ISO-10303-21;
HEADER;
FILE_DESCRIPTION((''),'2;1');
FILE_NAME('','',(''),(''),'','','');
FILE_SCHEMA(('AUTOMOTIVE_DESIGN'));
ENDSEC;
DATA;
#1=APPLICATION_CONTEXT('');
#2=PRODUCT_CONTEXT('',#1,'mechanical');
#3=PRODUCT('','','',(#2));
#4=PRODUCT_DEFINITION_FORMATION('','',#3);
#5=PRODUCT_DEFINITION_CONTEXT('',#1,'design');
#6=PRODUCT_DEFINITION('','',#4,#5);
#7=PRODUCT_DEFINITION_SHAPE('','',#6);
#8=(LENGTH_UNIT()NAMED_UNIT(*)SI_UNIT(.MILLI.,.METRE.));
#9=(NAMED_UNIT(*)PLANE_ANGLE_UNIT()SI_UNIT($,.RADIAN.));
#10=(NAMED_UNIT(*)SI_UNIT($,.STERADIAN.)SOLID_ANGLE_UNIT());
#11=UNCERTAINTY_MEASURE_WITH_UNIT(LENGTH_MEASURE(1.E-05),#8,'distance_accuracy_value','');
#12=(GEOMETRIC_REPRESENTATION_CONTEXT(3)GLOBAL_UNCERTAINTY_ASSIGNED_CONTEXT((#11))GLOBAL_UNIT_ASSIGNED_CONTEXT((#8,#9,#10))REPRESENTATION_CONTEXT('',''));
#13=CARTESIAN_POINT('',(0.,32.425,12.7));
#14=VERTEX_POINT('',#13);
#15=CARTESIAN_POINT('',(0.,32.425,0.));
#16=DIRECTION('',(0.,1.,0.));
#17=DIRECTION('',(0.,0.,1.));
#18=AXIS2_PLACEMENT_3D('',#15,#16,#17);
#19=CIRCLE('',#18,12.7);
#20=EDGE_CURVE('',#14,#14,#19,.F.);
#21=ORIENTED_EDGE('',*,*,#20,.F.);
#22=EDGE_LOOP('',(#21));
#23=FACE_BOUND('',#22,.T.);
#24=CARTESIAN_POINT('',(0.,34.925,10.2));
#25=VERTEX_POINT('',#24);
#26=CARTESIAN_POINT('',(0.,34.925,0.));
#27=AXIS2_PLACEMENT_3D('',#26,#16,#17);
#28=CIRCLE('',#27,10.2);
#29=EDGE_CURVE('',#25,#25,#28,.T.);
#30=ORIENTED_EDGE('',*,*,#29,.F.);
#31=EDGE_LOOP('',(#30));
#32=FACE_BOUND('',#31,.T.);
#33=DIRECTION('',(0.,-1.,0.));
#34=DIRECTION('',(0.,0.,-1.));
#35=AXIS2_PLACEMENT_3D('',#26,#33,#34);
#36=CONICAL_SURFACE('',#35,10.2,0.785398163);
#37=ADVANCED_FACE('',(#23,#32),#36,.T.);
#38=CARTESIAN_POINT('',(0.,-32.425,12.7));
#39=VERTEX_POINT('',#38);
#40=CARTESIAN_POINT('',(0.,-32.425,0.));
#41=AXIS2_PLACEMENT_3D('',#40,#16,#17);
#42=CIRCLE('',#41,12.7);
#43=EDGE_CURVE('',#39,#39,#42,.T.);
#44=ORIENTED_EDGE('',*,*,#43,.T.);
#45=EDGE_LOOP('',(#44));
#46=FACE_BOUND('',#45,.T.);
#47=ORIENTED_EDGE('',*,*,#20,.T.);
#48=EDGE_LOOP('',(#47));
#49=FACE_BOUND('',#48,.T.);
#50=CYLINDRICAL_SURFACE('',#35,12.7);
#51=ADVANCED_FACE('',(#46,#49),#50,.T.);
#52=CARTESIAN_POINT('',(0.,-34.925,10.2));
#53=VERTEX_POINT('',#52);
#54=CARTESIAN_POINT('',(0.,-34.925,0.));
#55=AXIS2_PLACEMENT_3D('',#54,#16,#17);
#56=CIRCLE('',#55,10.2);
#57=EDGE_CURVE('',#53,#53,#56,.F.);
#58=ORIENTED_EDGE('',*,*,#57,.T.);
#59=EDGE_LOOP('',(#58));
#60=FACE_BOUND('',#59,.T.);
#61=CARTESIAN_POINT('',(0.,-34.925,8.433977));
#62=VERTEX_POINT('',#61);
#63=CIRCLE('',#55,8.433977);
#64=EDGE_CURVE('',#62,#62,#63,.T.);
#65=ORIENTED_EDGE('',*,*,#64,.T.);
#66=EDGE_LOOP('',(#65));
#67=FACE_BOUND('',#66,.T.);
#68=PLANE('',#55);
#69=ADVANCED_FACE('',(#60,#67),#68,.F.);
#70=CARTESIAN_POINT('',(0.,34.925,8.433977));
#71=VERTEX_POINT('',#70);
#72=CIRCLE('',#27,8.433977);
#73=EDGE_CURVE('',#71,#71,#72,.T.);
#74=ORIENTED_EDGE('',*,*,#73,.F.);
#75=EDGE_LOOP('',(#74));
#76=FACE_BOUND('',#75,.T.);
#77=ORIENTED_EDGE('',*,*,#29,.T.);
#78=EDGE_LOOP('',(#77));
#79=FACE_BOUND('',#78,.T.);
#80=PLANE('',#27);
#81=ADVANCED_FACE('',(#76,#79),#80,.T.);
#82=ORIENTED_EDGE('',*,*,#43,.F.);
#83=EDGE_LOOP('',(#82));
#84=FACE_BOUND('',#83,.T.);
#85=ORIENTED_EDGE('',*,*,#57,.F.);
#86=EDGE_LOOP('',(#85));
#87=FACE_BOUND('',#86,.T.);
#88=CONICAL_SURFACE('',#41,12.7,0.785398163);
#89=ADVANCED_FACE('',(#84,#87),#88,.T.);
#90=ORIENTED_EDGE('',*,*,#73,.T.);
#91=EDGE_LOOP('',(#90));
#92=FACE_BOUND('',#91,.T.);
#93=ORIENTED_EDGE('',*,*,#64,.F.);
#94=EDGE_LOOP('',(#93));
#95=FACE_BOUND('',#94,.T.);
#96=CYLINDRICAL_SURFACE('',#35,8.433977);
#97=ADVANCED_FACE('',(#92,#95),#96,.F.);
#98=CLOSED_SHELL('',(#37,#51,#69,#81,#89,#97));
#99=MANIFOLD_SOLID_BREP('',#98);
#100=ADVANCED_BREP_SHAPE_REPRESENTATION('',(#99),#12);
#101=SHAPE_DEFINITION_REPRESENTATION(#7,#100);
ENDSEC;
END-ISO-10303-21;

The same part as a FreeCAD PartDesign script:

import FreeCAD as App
import Part
import Sketcher
Q = App.Units.Quantity


def edges_at(feature, points):
    """Names of the edges that pass closest to the given points."""
    edges = feature.Shape.Edges
    near = lambda p: min(range(len(edges)), key=lambda i: edges[i].distToShape(Part.Vertex(*p))[0])
    return sorted({f"Edge{near(p) + 1}" for p in points})

doc = App.newDocument("Part")
body = doc.addObject("PartDesign::Body", "Body")

sketch1 = doc.addObject("Sketcher::SketchObject", "Sketch")
body.addObject(sketch1)
sketch1.AttachmentSupport = (doc.XZ_Plane, [""])
sketch1.MapMode = "FlatFace"
sketch1.addGeometry(Part.Circle(App.Vector(0, 0, 0), App.Vector(0, 0, 1), 12.7), False)
sketch1.addGeometry(Part.Circle(App.Vector(0, 0, 0), App.Vector(0, 0, 1), 8.433977), False)
sketch1.addConstraint(Sketcher.Constraint("Coincident", 0, 3, -1, 1))
sketch1.addConstraint(Sketcher.Constraint("Coincident", 1, 3, -1, 1))
sketch1.addConstraint(Sketcher.Constraint("Diameter", 0, Q("1 in")))
sketch1.addConstraint(Sketcher.Constraint("Diameter", 1, Q("16.867954 mm")))
pad1 = doc.addObject("PartDesign::Pad", "Pad")
body.addObject(pad1)
pad1.Profile = sketch1
pad1.Length = Q("2.75 in")
pad1.Midplane = True
doc.recompute()

chamfer = doc.addObject("PartDesign::Chamfer", "Chamfer")
body.addObject(chamfer)
chamfer.Base = (pad1, edges_at(pad1, [(0, -34.925, -12.7), (0, 34.925, -12.7)]))
chamfer.Size = 2.5

doc.recompute()
